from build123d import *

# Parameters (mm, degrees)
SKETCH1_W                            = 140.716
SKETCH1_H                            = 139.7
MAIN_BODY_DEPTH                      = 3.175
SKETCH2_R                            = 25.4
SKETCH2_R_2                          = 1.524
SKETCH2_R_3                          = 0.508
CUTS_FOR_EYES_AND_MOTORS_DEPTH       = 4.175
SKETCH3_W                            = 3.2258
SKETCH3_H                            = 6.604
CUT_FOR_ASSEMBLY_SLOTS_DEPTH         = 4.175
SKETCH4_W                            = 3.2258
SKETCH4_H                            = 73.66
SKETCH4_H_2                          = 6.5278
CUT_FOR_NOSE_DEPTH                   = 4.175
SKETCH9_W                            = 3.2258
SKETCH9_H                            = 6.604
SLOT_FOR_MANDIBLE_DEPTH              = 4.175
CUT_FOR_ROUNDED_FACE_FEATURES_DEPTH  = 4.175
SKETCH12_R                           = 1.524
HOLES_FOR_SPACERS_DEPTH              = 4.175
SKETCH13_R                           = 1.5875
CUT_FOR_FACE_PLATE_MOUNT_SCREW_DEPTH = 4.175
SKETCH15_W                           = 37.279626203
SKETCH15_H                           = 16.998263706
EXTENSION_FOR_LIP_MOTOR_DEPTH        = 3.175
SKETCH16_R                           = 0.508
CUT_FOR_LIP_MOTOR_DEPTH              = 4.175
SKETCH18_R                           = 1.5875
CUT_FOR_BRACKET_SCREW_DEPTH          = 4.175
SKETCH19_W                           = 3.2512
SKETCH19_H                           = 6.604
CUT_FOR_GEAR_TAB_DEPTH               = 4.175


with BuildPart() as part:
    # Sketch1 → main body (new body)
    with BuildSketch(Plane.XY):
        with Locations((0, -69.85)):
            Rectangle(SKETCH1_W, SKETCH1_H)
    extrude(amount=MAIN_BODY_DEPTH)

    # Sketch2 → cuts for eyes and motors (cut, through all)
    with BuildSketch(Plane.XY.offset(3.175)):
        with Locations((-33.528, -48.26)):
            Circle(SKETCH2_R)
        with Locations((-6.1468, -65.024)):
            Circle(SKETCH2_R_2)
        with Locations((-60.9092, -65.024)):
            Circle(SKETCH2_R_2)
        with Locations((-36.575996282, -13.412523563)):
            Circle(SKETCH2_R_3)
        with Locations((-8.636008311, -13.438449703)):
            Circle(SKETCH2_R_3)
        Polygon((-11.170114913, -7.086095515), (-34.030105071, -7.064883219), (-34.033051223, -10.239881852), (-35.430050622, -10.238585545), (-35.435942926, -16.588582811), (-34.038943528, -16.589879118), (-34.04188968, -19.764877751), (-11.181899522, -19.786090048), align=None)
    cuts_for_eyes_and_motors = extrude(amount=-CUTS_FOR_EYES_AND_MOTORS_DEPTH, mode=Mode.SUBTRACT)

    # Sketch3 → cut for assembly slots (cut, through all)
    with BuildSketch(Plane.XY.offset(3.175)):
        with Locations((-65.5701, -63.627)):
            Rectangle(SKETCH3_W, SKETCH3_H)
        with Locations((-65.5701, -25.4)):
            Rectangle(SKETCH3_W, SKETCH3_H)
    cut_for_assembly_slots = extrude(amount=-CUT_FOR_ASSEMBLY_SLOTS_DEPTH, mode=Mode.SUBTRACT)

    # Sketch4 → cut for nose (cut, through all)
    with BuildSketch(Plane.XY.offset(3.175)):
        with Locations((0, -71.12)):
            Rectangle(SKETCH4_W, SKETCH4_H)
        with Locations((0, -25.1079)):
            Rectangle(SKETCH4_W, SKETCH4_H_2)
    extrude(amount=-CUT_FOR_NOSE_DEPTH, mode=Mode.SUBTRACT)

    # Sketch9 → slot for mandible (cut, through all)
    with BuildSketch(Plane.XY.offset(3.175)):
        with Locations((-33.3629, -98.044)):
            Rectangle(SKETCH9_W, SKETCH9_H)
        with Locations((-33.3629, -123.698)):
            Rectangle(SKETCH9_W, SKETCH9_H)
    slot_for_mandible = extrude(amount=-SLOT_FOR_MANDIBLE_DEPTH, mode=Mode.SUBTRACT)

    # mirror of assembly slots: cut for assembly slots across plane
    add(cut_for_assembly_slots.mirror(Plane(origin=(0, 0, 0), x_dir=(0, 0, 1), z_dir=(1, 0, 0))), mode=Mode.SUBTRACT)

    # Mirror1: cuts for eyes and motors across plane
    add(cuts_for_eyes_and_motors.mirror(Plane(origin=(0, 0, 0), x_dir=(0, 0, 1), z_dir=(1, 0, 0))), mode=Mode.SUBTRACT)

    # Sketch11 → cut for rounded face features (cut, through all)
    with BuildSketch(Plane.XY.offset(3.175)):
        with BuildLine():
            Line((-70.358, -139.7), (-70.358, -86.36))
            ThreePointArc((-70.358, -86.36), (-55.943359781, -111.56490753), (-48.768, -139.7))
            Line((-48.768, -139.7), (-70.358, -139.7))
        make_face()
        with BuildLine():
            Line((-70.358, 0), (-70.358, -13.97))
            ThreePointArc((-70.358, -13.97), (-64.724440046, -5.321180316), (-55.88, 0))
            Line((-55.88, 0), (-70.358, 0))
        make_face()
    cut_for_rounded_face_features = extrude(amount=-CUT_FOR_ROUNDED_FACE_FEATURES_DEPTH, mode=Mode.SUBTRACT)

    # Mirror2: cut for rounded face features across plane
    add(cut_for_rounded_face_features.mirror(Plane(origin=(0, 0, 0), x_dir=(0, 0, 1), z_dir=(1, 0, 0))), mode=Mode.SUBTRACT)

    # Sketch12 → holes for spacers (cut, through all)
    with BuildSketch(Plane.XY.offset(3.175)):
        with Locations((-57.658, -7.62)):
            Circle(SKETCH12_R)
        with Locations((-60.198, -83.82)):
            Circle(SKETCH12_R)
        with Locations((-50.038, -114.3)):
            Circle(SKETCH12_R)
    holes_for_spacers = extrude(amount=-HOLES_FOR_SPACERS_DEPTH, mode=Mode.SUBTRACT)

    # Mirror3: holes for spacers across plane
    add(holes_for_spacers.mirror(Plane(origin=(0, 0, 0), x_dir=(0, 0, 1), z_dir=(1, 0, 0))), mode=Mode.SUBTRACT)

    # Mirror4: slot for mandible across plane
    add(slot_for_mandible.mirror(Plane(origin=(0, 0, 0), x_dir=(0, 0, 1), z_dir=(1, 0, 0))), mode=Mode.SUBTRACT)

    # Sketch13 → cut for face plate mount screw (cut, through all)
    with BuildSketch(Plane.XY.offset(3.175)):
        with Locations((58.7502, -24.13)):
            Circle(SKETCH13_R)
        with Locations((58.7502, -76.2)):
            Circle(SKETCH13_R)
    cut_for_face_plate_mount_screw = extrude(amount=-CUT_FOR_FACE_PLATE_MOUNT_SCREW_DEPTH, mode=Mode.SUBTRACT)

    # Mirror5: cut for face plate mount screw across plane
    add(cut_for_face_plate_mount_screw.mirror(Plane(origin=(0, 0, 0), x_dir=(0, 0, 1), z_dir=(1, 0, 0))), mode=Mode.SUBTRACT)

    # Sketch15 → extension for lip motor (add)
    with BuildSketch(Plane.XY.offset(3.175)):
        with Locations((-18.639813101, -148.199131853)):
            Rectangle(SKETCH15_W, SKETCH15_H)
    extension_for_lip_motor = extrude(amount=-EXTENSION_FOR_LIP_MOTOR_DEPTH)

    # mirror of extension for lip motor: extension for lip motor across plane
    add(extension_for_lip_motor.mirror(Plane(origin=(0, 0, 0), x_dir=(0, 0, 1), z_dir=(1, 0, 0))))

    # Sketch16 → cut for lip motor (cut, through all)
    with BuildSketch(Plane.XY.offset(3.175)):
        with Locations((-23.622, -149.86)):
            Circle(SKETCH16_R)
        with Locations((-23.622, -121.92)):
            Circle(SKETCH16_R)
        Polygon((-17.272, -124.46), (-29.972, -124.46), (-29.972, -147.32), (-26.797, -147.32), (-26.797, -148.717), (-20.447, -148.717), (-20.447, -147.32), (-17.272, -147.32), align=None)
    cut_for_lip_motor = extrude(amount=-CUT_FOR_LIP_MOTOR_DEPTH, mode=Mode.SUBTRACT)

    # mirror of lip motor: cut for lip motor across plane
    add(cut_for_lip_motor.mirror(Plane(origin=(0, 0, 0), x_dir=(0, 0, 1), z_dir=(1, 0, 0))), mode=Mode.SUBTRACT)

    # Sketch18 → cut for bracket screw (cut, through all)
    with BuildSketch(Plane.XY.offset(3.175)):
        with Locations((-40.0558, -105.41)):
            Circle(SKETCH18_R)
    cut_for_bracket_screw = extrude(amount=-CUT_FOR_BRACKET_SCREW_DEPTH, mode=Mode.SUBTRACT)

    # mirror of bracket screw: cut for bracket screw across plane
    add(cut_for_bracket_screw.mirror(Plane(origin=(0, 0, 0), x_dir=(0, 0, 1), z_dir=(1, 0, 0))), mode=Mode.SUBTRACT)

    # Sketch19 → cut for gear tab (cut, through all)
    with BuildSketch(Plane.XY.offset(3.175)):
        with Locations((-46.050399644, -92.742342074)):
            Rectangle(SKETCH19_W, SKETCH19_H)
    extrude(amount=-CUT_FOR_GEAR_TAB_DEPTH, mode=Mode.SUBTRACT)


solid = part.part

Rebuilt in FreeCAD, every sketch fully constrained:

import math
import FreeCAD as App
import Part
import Sketcher

V = App.Vector
Q = App.Units.Quantity


def add_polygon(sketch, points):
    """Adds a closed chain of lines whose ends are joined by coincident constraints."""
    first, n = sketch.GeometryCount, len(points)
    for a, b in zip(points, points[1:] + points[:1]):
        sketch.addGeometry(Part.LineSegment(App.Vector(*a, 0), App.Vector(*b, 0)), False)
    for i in range(n):
        sketch.addConstraint(Sketcher.Constraint("Coincident", first + i, 2, first + (i + 1) % n, 1))

doc = App.newDocument("Part")
body = doc.addObject("PartDesign::Body", "Body")

sketch1 = body.newObject("Sketcher::SketchObject", "Sketch")
sketch1.AttachmentSupport = (doc.getObject("XY_Plane"), [""])
sketch1.MapMode = "FlatFace"
add_polygon(sketch1, [(-70.358, 0), (-70.358, -139.7), (70.358, -139.7), (70.358, 0)])
sketch1.addConstraint(Sketcher.Constraint("Vertical", 0))
sketch1.addConstraint(Sketcher.Constraint("Horizontal", 1))
sketch1.addConstraint(Sketcher.Constraint("Vertical", 2))
sketch1.addConstraint(Sketcher.Constraint("Horizontal", 3))
sketch1.addConstraint(Sketcher.Constraint("Symmetric", 2, 2, 3, 2, -1, 1))
sketch1.addConstraint(Sketcher.Constraint("DistanceY", 0, 2, 0, 1, Q("5.5 in")))
sketch1.addConstraint(Sketcher.Constraint("DistanceX", 1, 1, 1, 2, Q("5.54 in")))
pad1 = body.newObject("PartDesign::Pad", "Pad")
pad1.Profile = sketch1
pad1.Length = Q("0.125 in")

sketch2 = body.newObject("Sketcher::SketchObject", "Sketch001")
sketch2.AttachmentSupport = (doc.getObject("XY_Plane"), [""])
sketch2.MapMode = "FlatFace"
sketch2.AttachmentOffset = App.Placement(V(0, 0, 0.125 * 25.4), App.Rotation())
sketch2.addGeometry(Part.Circle(V(-33.528, -48.26, 0), V(0, 0, 1), 25.4), False)
sketch2.addGeometry(Part.Circle(V(-6.1468, -65.024, 0), V(0, 0, 1), 1.524), False)
sketch2.addGeometry(Part.Circle(V(-60.9092, -65.024, 0), V(0, 0, 1), 1.524), False)
sketch2.addGeometry(Part.Circle(V(-36.575996, -13.412524, 0), V(0, 0, 1), 0.508), False)
sketch2.addGeometry(Part.Circle(V(-8.636008, -13.43845, 0), V(0, 0, 1), 0.508), False)
add_polygon(sketch2, [(-11.170115, -7.086096), (-34.030105, -7.064883), (-34.033051, -10.239882), (-35.430051, -10.238586), (-35.435943, -16.588583), (-34.038944, -16.589879), (-34.04189, -19.764878), (-11.1819, -19.78609)])
sketch2.addConstraint(Sketcher.Constraint("Equal", 1, 2))
sketch2.addConstraint(Sketcher.Constraint("Equal", 3, 4))
sketch2.addConstraint(Sketcher.Constraint("Perpendicular", 5, 6))
sketch2.addConstraint(Sketcher.Constraint("Perpendicular", 6, 7))
sketch2.addConstraint(Sketcher.Constraint("Perpendicular", 7, 8))
sketch2.addConstraint(Sketcher.Constraint("Perpendicular", 8, 9))
sketch2.addConstraint(Sketcher.Constraint("Perpendicular", 9, 10))
sketch2.addConstraint(Sketcher.Constraint("Perpendicular", 10, 11))
sketch2.addConstraint(Sketcher.Constraint("Perpendicular", 11, 12))
sketch2.addConstraint(Sketcher.Constraint("Horizontal", 1, 3, 2, 3))
sketch2.addConstraint(Sketcher.Constraint("Equal", 7, 9))
sketch2.addConstraint(Sketcher.Constraint("Equal", 6, 10))
sketch2.addConstraint(Sketcher.Constraint("Diameter", 0, Q("2 in")))
sketch2.addConstraint(Sketcher.Constraint("Diameter", 1, Q("0.12 in")))
sketch2.addConstraint(Sketcher.Constraint("Diameter", 3, Q("0.04 in")))
sketch2.addConstraint(Sketcher.Constraint("Distance", 5, Q("0.9 in")))
sketch2.addConstraint(Sketcher.Constraint("Distance", 12, Q("0.5 in")))
sketch2.addConstraint(Sketcher.Constraint("DistanceY", 0, 3, -1, 1, Q("1.9 in")))
sketch2.addConstraint(Sketcher.Constraint("Distance", 8, Q("0.25 in")))
sketch2.addConstraint(Sketcher.Constraint("DistanceX", 0, 3, -1, 1, Q("1.32 in")))
sketch2.addConstraint(Sketcher.Constraint("DistanceY", 1, 3, -1, 1, Q("2.56 in")))
sketch2.addConstraint(Sketcher.Constraint("DistanceX", 3, 3, -1, 1, Q("1.4399999 in")))
sketch2.addConstraint(Sketcher.Constraint("Distance", 7, Q("0.055 in")))
sketch2.addConstraint(Sketcher.Constraint("DistanceX", 1, 3, -1, 1, Q("0.242 in")))
sketch2.addConstraint(Sketcher.Constraint("DistanceX", 2, 3, -1, 1, Q("2.398 in")))
sketch2.addConstraint(Sketcher.Constraint("DistanceX", 11, 2, -1, 1, Q("11.1819 mm")))
sketch2.addConstraint(Sketcher.Constraint("DistanceY", 8, 2, 6, 2, Q("6.348701 mm")))
sketch2.addConstraint(Sketcher.Constraint("DistanceX", 4, 3, -1, 1, Q("8.636008 mm")))
sketch2.addConstraint(Sketcher.Constraint("DistanceY", 4, 3, -1, 1, Q("13.43845 mm")))
sketch2.addConstraint(Sketcher.Constraint("DistanceY", 6, 2, -1, 1, Q("10.239882 mm")))
sketch2.addConstraint(Sketcher.Constraint("DistanceY", 3, 3, 5, 2, Q("6.34764 mm")))
pocket1 = body.newObject("PartDesign::Pocket", "Pocket")
pocket1.Profile = sketch2
pocket1.Type = "ThroughAll"

sketch3 = body.newObject("Sketcher::SketchObject", "Sketch002")
sketch3.AttachmentSupport = (doc.getObject("XY_Plane"), [""])
sketch3.MapMode = "FlatFace"
sketch3.AttachmentOffset = App.Placement(V(0, 0, 0.125 * 25.4), App.Rotation())
add_polygon(sketch3, [(-67.183, -60.325), (-67.183, -66.929), (-63.9572, -66.929), (-63.9572, -60.325)])
add_polygon(sketch3, [(-67.183, -22.098), (-67.183, -28.702), (-63.9572, -28.702), (-63.9572, -22.098)])
sketch3.addConstraint(Sketcher.Constraint("Vertical", 0))
sketch3.addConstraint(Sketcher.Constraint("Horizontal", 1))
sketch3.addConstraint(Sketcher.Constraint("Vertical", 2))
sketch3.addConstraint(Sketcher.Constraint("Horizontal", 3))
sketch3.addConstraint(Sketcher.Constraint("Vertical", 4))
sketch3.addConstraint(Sketcher.Constraint("Horizontal", 5))
sketch3.addConstraint(Sketcher.Constraint("Vertical", 6))
sketch3.addConstraint(Sketcher.Constraint("Horizontal", 7))
sketch3.addConstraint(Sketcher.Constraint("Vertical", 3, 2, 4, 2))
sketch3.addConstraint(Sketcher.Constraint("Vertical", 2, 2, 5, 2))
sketch3.addConstraint(Sketcher.Constraint("Equal", 2, 4))
sketch3.addConstraint(Sketcher.Constraint("DistanceY", 0, 2, 0, 1, Q("0.26 in")))
sketch3.addConstraint(Sketcher.Constraint("DistanceX", 1, 1, 1, 2, Q("0.127 in")))
sketch3.addConstraint(Sketcher.Constraint("DistanceY", 4, 2, -1, 1, Q("1.13 in")))
sketch3.addConstraint(Sketcher.Constraint("DistanceX", 0, 2, -1, 1, Q("2.645 in")))
sketch3.addConstraint(Sketcher.Constraint("DistanceY", 0, 2, -1, 1, Q("2.635 in")))
pocket2 = body.newObject("PartDesign::Pocket", "Pocket001")
pocket2.Profile = sketch3
pocket2.Type = "ThroughAll"

sketch4 = body.newObject("Sketcher::SketchObject", "Sketch003")
sketch4.AttachmentSupport = (doc.getObject("XY_Plane"), [""])
sketch4.MapMode = "FlatFace"
sketch4.AttachmentOffset = App.Placement(V(0, 0, 0.125 * 25.4), App.Rotation())
add_polygon(sketch4, [(-1.6129, -34.29), (-1.6129, -107.95), (1.6129, -107.95), (1.6129, -34.29)])
add_polygon(sketch4, [(-1.6129, -21.844), (-1.6129, -28.3718), (1.6129, -28.3718), (1.6129, -21.844)])
sketch4.addConstraint(Sketcher.Constraint("Vertical", 0))
sketch4.addConstraint(Sketcher.Constraint("Horizontal", 1))
sketch4.addConstraint(Sketcher.Constraint("Vertical", 2))
sketch4.addConstraint(Sketcher.Constraint("Horizontal", 3))
sketch4.addConstraint(Sketcher.Constraint("Vertical", 4))
sketch4.addConstraint(Sketcher.Constraint("Horizontal", 5))
sketch4.addConstraint(Sketcher.Constraint("Vertical", 6))
sketch4.addConstraint(Sketcher.Constraint("Horizontal", 7))
sketch4.addConstraint(Sketcher.Constraint("Vertical", 3, 2, 4, 2))
sketch4.addConstraint(Sketcher.Constraint("Vertical", 2, 2, 5, 2))
sketch4.addConstraint(Sketcher.Constraint("DistanceY", 0, 2, 0, 1, Q("2.9 in")))
sketch4.addConstraint(Sketcher.Constraint("DistanceX", 1, 1, 1, 2, Q("0.127 in")))
sketch4.addConstraint(Sketcher.Constraint("DistanceY", 4, 2, 4, 1, Q("0.257 in")))
sketch4.addConstraint(Sketcher.Constraint("DistanceY", 0, 2, -1, 1, Q("4.25 in")))
sketch4.addConstraint(Sketcher.Constraint("DistanceY", 6, 2, -1, 1, Q("0.86 in")))
sketch4.addConstraint(Sketcher.Constraint("DistanceX", 0, 2, -1, 1, Q("0.0635 in")))
pocket3 = body.newObject("PartDesign::Pocket", "Pocket002")
pocket3.Profile = sketch4
pocket3.Type = "ThroughAll"

sketch5 = body.newObject("Sketcher::SketchObject", "Sketch004")
sketch5.AttachmentSupport = (doc.getObject("XY_Plane"), [""])
sketch5.MapMode = "FlatFace"
sketch5.AttachmentOffset = App.Placement(V(0, 0, 0.125 * 25.4), App.Rotation())
add_polygon(sketch5, [(-34.9758, -94.742), (-34.9758, -101.346), (-31.75, -101.346), (-31.75, -94.742)])
add_polygon(sketch5, [(-34.9758, -120.396), (-34.9758, -127), (-31.75, -127), (-31.75, -120.396)])
sketch5.addConstraint(Sketcher.Constraint("Vertical", 0))
sketch5.addConstraint(Sketcher.Constraint("Horizontal", 1))
sketch5.addConstraint(Sketcher.Constraint("Vertical", 2))
sketch5.addConstraint(Sketcher.Constraint("Horizontal", 3))
sketch5.addConstraint(Sketcher.Constraint("Vertical", 4))
sketch5.addConstraint(Sketcher.Constraint("Horizontal", 5))
sketch5.addConstraint(Sketcher.Constraint("Vertical", 6))
sketch5.addConstraint(Sketcher.Constraint("Horizontal", 7))
sketch5.addConstraint(Sketcher.Constraint("Vertical", 3, 2, 4, 2))
sketch5.addConstraint(Sketcher.Constraint("Vertical", 2, 2, 5, 2))
sketch5.addConstraint(Sketcher.Constraint("Equal", 2, 4))
sketch5.addConstraint(Sketcher.Constraint("DistanceY", 4, 2, -1, 1, Q("5 in")))
sketch5.addConstraint(Sketcher.Constraint("DistanceY", 0, 2, 0, 1, Q("0.26 in")))
sketch5.addConstraint(Sketcher.Constraint("DistanceX", 1, 1, 1, 2, Q("0.127 in")))
sketch5.addConstraint(Sketcher.Constraint("DistanceY", 0, 2, -1, 1, Q("3.99 in")))
sketch5.addConstraint(Sketcher.Constraint("DistanceX", 1, 2, -1, 1, Q("1.25 in")))
pocket4 = body.newObject("PartDesign::Pocket", "Pocket003")
pocket4.Profile = sketch5
pocket4.Type = "ThroughAll"
doc.recompute()

mirrored = body.newObject("PartDesign::Mirrored", "Mirrored")
mirrored.Originals = [pocket2]
mirrored.MirrorPlane = (doc.getObject("YZ_Plane"), [""])
body.Tip = mirrored
doc.recompute()

mirrored2 = body.newObject("PartDesign::Mirrored", "Mirrored001")
mirrored2.Originals = [pocket1]
mirrored2.MirrorPlane = (doc.getObject("YZ_Plane"), [""])
body.Tip = mirrored2

sketch6 = body.newObject("Sketcher::SketchObject", "Sketch005")
sketch6.AttachmentSupport = (doc.getObject("XY_Plane"), [""])
sketch6.MapMode = "FlatFace"
sketch6.AttachmentOffset = App.Placement(V(0, 0, 0.125 * 25.4), App.Rotation())
sketch6.addGeometry(Part.LineSegment(V(-70.358, -86.36, 0), V(-70.358, -139.7, 0)), False)
sketch6.addGeometry(Part.LineSegment(V(-70.358, -139.7, 0), V(-48.768, -139.7, 0)), False)
sketch6.addGeometry(Part.ArcOfCircle(Part.Circle(V(-156.007268, -152.066966, 0), V(0, 0, 1), 107.95), math.radians(6.578361), math.radians(37.494093)), False)
sketch6.addGeometry(Part.LineSegment(V(-70.358, 0, 0), V(-70.358, -13.97, 0)), False)
sketch6.addGeometry(Part.ArcOfCircle(Part.Circle(V(-48.726439, -21.900927, 0), V(0, 0, 1), 23.039619), math.radians(108.088736), math.radians(159.865204)), False)
sketch6.addGeometry(Part.LineSegment(V(-55.88, 0, 0), V(-70.358, 0, 0)), False)
sketch6.addConstraint(Sketcher.Constraint("Coincident", 0, 2, 1, 1))
sketch6.addConstraint(Sketcher.Constraint("Coincident", 1, 2, 2, 1))
sketch6.addConstraint(Sketcher.Constraint("Coincident", 2, 2, 0, 1))
sketch6.addConstraint(Sketcher.Constraint("Coincident", 3, 2, 4, 2))
sketch6.addConstraint(Sketcher.Constraint("Coincident", 4, 1, 5, 1))
sketch6.addConstraint(Sketcher.Constraint("Coincident", 5, 2, 3, 1))
sketch6.addConstraint(Sketcher.Constraint("Vertical", 0))
sketch6.addConstraint(Sketcher.Constraint("Horizontal", 1))
sketch6.addConstraint(Sketcher.Constraint("Vertical", 3))
sketch6.addConstraint(Sketcher.Constraint("Horizontal", 5))
sketch6.addConstraint(Sketcher.Constraint("PointOnObject", 4, 1, -1))
sketch6.addConstraint(Sketcher.Constraint("Vertical", 2, 2, 3, 2))
sketch6.addConstraint(Sketcher.Constraint("Radius", 2, Q("4.25 in")))
sketch6.addConstraint(Sketcher.Constraint("DistanceY", 0, 2, 0, 1, Q("2.1 in")))
sketch6.addConstraint(Sketcher.Constraint("DistanceX", 1, 1, 1, 2, Q("0.85 in")))
sketch6.addConstraint(Sketcher.Constraint("DistanceX", 5, 2, 5, 1, Q("0.57 in")))
sketch6.addConstraint(Sketcher.Constraint("DistanceY", 3, 2, 3, 1, Q("0.55 in")))
sketch6.addConstraint(Sketcher.Constraint("DistanceY", 0, 2, -1, 1, Q("5.5 in")))
sketch6.addConstraint(Sketcher.Constraint("DistanceX", 4, 1, -1, 1, Q("2.2 in")))
sketch6.addConstraint(Sketcher.Constraint("Radius", 4, Q("23.039619 mm")))
pocket5 = body.newObject("PartDesign::Pocket", "Pocket004")
pocket5.Profile = sketch6
pocket5.Type = "ThroughAll"
doc.recompute()

mirrored3 = body.newObject("PartDesign::Mirrored", "Mirrored002")
mirrored3.Originals = [pocket5]
mirrored3.MirrorPlane = (doc.getObject("YZ_Plane"), [""])
body.Tip = mirrored3

sketch7 = body.newObject("Sketcher::SketchObject", "Sketch006")
sketch7.AttachmentSupport = (doc.getObject("XY_Plane"), [""])
sketch7.MapMode = "FlatFace"
sketch7.AttachmentOffset = App.Placement(V(0, 0, 0.125 * 25.4), App.Rotation())
sketch7.addGeometry(Part.Circle(V(-57.658, -7.62, 0), V(0, 0, 1), 1.524), False)
sketch7.addGeometry(Part.Circle(V(-60.198, -83.82, 0), V(0, 0, 1), 1.524), False)
sketch7.addGeometry(Part.Circle(V(-50.038, -114.3, 0), V(0, 0, 1), 1.524), False)
sketch7.addConstraint(Sketcher.Constraint("Equal", 0, 1))
sketch7.addConstraint(Sketcher.Constraint("Equal", 1, 2))
sketch7.addConstraint(Sketcher.Constraint("Diameter", 0, Q("0.12 in")))
sketch7.addConstraint(Sketcher.Constraint("DistanceY", 1, 3, 0, 3, Q("3 in")))
sketch7.addConstraint(Sketcher.Constraint("DistanceY", 0, 3, -1, 1, Q("0.3 in")))
sketch7.addConstraint(Sketcher.Constraint("DistanceY", 2, 3, -1, 1, Q("4.5 in")))
sketch7.addConstraint(Sketcher.Constraint("DistanceX", 1, 3, 0, 3, Q("0.1 in")))
sketch7.addConstraint(Sketcher.Constraint("DistanceX", 1, 3, 2, 3, Q("0.4 in")))
sketch7.addConstraint(Sketcher.Constraint("DistanceX", 0, 3, -1, 1, Q("2.27 in")))
pocket6 = body.newObject("PartDesign::Pocket", "Pocket005")
pocket6.Profile = sketch7
pocket6.Type = "ThroughAll"
doc.recompute()

mirrored4 = body.newObject("PartDesign::Mirrored", "Mirrored003")
mirrored4.Originals = [pocket6]
mirrored4.MirrorPlane = (doc.getObject("YZ_Plane"), [""])
body.Tip = mirrored4
doc.recompute()

mirrored5 = body.newObject("PartDesign::Mirrored", "Mirrored004")
mirrored5.Originals = [pocket4]
mirrored5.MirrorPlane = (doc.getObject("YZ_Plane"), [""])
body.Tip = mirrored5

sketch8 = body.newObject("Sketcher::SketchObject", "Sketch007")
sketch8.AttachmentSupport = (doc.getObject("XY_Plane"), [""])
sketch8.MapMode = "FlatFace"
sketch8.AttachmentOffset = App.Placement(V(0, 0, 0.125 * 25.4), App.Rotation())
sketch8.addGeometry(Part.Circle(V(58.7502, -24.13, 0), V(0, 0, 1), 1.5875), False)
sketch8.addGeometry(Part.Circle(V(58.7502, -76.2, 0), V(0, 0, 1), 1.5875), False)
sketch8.addConstraint(Sketcher.Constraint("Equal", 0, 1))
sketch8.addConstraint(Sketcher.Constraint("Vertical", 0, 3, 1, 3))
sketch8.addConstraint(Sketcher.Constraint("Diameter", 0, Q("0.125 in")))
sketch8.addConstraint(Sketcher.Constraint("DistanceY", 1, 3, -1, 1, Q("3 in")))
sketch8.addConstraint(Sketcher.Constraint("DistanceY", 0, 3, -1, 1, Q("0.95 in")))
sketch8.addConstraint(Sketcher.Constraint("DistanceX", -1, 1, 0, 3, Q("2.313 in")))
pocket7 = body.newObject("PartDesign::Pocket", "Pocket006")
pocket7.Profile = sketch8
pocket7.Type = "ThroughAll"
doc.recompute()

mirrored6 = body.newObject("PartDesign::Mirrored", "Mirrored005")
mirrored6.Originals = [pocket7]
mirrored6.MirrorPlane = (doc.getObject("YZ_Plane"), [""])
body.Tip = mirrored6

sketch9 = body.newObject("Sketcher::SketchObject", "Sketch008")
sketch9.AttachmentSupport = (doc.getObject("XY_Plane"), [""])
sketch9.MapMode = "FlatFace"
sketch9.AttachmentOffset = App.Placement(V(0, 0, 0.125 * 25.4), App.Rotation())
add_polygon(sketch9, [(-37.279626, -139.7), (-37.279626, -156.698264), (0, -156.698264), (0, -139.7)])
sketch9.addConstraint(Sketcher.Constraint("Vertical", 0))
sketch9.addConstraint(Sketcher.Constraint("Horizontal", 1))
sketch9.addConstraint(Sketcher.Constraint("Vertical", 2))
sketch9.addConstraint(Sketcher.Constraint("Horizontal", 3))
sketch9.addConstraint(Sketcher.Constraint("PointOnObject", 1, 2, -2))
sketch9.addConstraint(Sketcher.Constraint("DistanceY", 2, 2, -1, 1, Q("5.5 in")))
sketch9.addConstraint(Sketcher.Constraint("DistanceX", 1, 1, 1, 2, Q("37.279626 mm")))
sketch9.addConstraint(Sketcher.Constraint("DistanceY", 0, 2, 0, 1, Q("16.998264 mm")))
pad2 = body.newObject("PartDesign::Pad", "Pad001")
pad2.Profile = sketch9
pad2.Length = Q("0.125 in")
pad2.Reversed = True
doc.recompute()

mirrored7 = body.newObject("PartDesign::Mirrored", "Mirrored006")
mirrored7.Originals = [pad2]
mirrored7.MirrorPlane = (doc.getObject("YZ_Plane"), [""])
body.Tip = mirrored7

sketch10 = body.newObject("Sketcher::SketchObject", "Sketch009")
sketch10.AttachmentSupport = (doc.getObject("XY_Plane"), [""])
sketch10.MapMode = "FlatFace"
sketch10.AttachmentOffset = App.Placement(V(0, 0, 0.125 * 25.4), App.Rotation())
sketch10.addGeometry(Part.Circle(V(-23.622, -149.86, 0), V(0, 0, 1), 0.508), False)
sketch10.addGeometry(Part.Circle(V(-23.622, -121.92, 0), V(0, 0, 1), 0.508), False)
add_polygon(sketch10, [(-17.272, -124.46), (-29.972, -124.46), (-29.972, -147.32), (-26.797, -147.32), (-26.797, -148.717), (-20.447, -148.717), (-20.447, -147.32), (-17.272, -147.32)])
sketch10.addConstraint(Sketcher.Constraint("Horizontal", 2))
sketch10.addConstraint(Sketcher.Constraint("Vertical", 3))
sketch10.addConstraint(Sketcher.Constraint("Horizontal", 4))
sketch10.addConstraint(Sketcher.Constraint("Vertical", 5))
sketch10.addConstraint(Sketcher.Constraint("Horizontal", 6))
sketch10.addConstraint(Sketcher.Constraint("Vertical", 7))
sketch10.addConstraint(Sketcher.Constraint("Horizontal", 8))
sketch10.addConstraint(Sketcher.Constraint("Vertical", 9))
sketch10.addConstraint(Sketcher.Constraint("Equal", 0, 1))
sketch10.addConstraint(Sketcher.Constraint("Horizontal", 4, 2, 7, 2))
sketch10.addConstraint(Sketcher.Constraint("Vertical", 0, 3, 1, 3))
sketch10.addConstraint(Sketcher.Constraint("Equal", 4, 8))
sketch10.addConstraint(Sketcher.Constraint("Diameter", 0, Q("0.04 in")))
sketch10.addConstraint(Sketcher.Constraint("DistanceX", 2, 2, 2, 1, Q("0.5 in")))
sketch10.addConstraint(Sketcher.Constraint("DistanceY", 3, 2, 3, 1, Q("0.9 in")))
sketch10.addConstraint(Sketcher.Constraint("DistanceY", 0, 3, 2, 2, Q("1 in")))
sketch10.addConstraint(Sketcher.Constraint("DistanceY", 3, 2, 1, 3, Q("1 in")))
sketch10.addConstraint(Sketcher.Constraint("DistanceX", 6, 1, 6, 2, Q("0.25 in")))
sketch10.addConstraint(Sketcher.Constraint("DistanceY", 0, 3, -1, 1, Q("5.9 in")))
sketch10.addConstraint(Sketcher.Constraint("DistanceY", 5, 2, 5, 1, Q("0.055 in")))
sketch10.addConstraint(Sketcher.Constraint("DistanceX", 0, 3, -1, 1, Q("0.93 in")))
sketch10.addConstraint(Sketcher.Constraint("DistanceX", 2, 2, -1, 1, Q("1.18 in")))
pocket8 = body.newObject("PartDesign::Pocket", "Pocket007")
pocket8.Profile = sketch10
pocket8.Type = "ThroughAll"
doc.recompute()

mirrored8 = body.newObject("PartDesign::Mirrored", "Mirrored007")
mirrored8.Originals = [pocket8]
mirrored8.MirrorPlane = (doc.getObject("YZ_Plane"), [""])
body.Tip = mirrored8

sketch11 = body.newObject("Sketcher::SketchObject", "Sketch010")
sketch11.AttachmentSupport = (doc.getObject("XY_Plane"), [""])
sketch11.MapMode = "FlatFace"
sketch11.AttachmentOffset = App.Placement(V(0, 0, 0.125 * 25.4), App.Rotation())
sketch11.addGeometry(Part.Circle(V(-40.0558, -105.41, 0), V(0, 0, 1), 1.5875), False)
sketch11.addConstraint(Sketcher.Constraint("Diameter", 0, Q("0.125 in")))
sketch11.addConstraint(Sketcher.Constraint("DistanceY", 0, 3, -1, 1, Q("4.15 in")))
sketch11.addConstraint(Sketcher.Constraint("DistanceX", 0, 3, -1, 1, Q("1.577 in")))
pocket9 = body.newObject("PartDesign::Pocket", "Pocket008")
pocket9.Profile = sketch11
pocket9.Type = "ThroughAll"
doc.recompute()

mirrored9 = body.newObject("PartDesign::Mirrored", "Mirrored008")
mirrored9.Originals = [pocket9]
mirrored9.MirrorPlane = (doc.getObject("YZ_Plane"), [""])
body.Tip = mirrored9

sketch12 = body.newObject("Sketcher::SketchObject", "Sketch011")
sketch12.AttachmentSupport = (doc.getObject("XY_Plane"), [""])
sketch12.MapMode = "FlatFace"
sketch12.AttachmentOffset = App.Placement(V(0, 0, 0.125 * 25.4), App.Rotation())
add_polygon(sketch12, [(-47.676, -89.440342), (-47.676, -96.044342), (-44.4248, -96.044342), (-44.4248, -89.440342)])
sketch12.addConstraint(Sketcher.Constraint("Vertical", 0))
sketch12.addConstraint(Sketcher.Constraint("Horizontal", 1))
sketch12.addConstraint(Sketcher.Constraint("Vertical", 2))
sketch12.addConstraint(Sketcher.Constraint("Horizontal", 3))
sketch12.addConstraint(Sketcher.Constraint("DistanceY", 0, 2, 0, 1, Q("0.26 in")))
sketch12.addConstraint(Sketcher.Constraint("DistanceX", 1, 1, 1, 2, Q("0.128 in")))
sketch12.addConstraint(Sketcher.Constraint("DistanceX", 0, 2, -1, 1, Q("47.676 mm")))
sketch12.addConstraint(Sketcher.Constraint("DistanceY", 0, 2, -1, 1, Q("96.044342 mm")))
pocket10 = body.newObject("PartDesign::Pocket", "Pocket009")
pocket10.Profile = sketch12
pocket10.Type = "ThroughAll"

doc.recompute()
